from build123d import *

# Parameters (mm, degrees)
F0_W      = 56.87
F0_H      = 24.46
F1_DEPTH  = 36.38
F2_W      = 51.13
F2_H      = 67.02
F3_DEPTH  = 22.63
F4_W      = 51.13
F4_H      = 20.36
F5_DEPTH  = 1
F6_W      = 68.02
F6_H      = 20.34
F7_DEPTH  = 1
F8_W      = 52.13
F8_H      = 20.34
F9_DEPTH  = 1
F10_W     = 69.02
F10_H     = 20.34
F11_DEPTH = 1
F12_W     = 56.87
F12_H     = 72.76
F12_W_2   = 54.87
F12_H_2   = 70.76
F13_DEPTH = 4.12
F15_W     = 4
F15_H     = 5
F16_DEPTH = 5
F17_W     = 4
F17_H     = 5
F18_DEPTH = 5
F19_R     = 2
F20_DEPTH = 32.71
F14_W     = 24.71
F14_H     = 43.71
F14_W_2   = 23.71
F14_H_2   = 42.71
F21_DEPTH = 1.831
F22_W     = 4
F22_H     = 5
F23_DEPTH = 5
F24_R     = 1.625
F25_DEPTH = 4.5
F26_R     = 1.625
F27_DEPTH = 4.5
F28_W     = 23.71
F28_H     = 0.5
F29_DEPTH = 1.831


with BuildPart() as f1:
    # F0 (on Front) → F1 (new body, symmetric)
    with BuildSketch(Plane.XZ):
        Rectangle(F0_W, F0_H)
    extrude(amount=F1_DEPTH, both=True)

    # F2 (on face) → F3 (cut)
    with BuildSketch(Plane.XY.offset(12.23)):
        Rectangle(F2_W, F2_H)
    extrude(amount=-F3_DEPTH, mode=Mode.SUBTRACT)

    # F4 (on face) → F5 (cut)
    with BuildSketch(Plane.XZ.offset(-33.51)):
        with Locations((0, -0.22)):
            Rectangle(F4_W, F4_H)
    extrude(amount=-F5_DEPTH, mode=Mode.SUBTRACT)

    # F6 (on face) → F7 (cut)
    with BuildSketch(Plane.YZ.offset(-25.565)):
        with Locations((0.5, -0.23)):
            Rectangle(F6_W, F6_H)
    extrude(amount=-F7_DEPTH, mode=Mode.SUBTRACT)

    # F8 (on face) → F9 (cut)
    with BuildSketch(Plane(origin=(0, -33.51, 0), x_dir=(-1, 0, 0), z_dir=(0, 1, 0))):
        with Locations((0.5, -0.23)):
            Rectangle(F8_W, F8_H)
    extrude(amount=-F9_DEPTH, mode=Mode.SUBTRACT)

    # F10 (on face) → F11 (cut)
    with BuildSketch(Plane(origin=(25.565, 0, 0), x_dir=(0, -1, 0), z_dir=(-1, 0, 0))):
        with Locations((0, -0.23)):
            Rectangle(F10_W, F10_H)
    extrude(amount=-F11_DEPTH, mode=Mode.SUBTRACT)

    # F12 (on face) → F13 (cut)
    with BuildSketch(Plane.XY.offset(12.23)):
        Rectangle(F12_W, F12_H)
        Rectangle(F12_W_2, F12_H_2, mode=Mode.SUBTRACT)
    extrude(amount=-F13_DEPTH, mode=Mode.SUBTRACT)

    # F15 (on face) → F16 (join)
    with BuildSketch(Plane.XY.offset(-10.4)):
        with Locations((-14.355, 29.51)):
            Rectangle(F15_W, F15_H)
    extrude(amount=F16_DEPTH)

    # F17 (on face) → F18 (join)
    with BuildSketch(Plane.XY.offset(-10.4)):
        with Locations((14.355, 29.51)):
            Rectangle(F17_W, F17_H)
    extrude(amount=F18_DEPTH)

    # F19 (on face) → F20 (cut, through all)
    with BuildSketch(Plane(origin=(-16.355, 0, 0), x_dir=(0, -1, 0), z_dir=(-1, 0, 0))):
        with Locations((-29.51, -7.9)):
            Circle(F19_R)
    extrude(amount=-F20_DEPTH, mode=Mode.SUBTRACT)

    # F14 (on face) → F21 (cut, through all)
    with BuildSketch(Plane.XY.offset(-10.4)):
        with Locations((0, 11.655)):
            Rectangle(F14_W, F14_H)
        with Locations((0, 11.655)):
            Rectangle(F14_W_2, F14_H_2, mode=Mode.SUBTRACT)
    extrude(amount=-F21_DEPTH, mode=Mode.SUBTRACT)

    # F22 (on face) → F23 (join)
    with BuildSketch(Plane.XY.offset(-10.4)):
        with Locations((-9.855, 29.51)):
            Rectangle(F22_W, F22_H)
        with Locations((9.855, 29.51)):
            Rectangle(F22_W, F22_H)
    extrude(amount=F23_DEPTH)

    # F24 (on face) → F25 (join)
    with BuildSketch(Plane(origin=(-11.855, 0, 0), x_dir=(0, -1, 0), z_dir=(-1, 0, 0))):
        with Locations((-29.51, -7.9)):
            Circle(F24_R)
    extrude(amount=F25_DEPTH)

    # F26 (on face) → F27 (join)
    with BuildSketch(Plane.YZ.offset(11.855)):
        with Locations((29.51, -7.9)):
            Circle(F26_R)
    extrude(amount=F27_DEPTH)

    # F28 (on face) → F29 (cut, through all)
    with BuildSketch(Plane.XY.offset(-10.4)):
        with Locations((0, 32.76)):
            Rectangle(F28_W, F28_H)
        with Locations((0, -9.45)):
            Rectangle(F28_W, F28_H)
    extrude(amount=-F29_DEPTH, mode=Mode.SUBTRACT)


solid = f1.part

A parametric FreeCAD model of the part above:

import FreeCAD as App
import Part
import Sketcher
from FreeCAD import Vector
Q = App.Units.Quantity


def add_polygon(sketch, points):
    """Adds a closed chain of lines whose ends are joined by coincident constraints."""
    first, n = sketch.GeometryCount, len(points)
    for a, b in zip(points, points[1:] + points[:1]):
        sketch.addGeometry(Part.LineSegment(App.Vector(*a, 0), App.Vector(*b, 0)), False)
    for i in range(n):
        sketch.addConstraint(Sketcher.Constraint("Coincident", first + i, 2, first + (i + 1) % n, 1))

doc = App.newDocument("Part")
body = doc.addObject("PartDesign::Body", "Body")
body.AllowCompound = True

# Sketch on XZ plane
sketch1 = body.newObject("Sketcher::SketchObject", "Sketch")
sketch1.AttachmentSupport = (doc.getObject("XZ_Plane"), [""])
sketch1.MapMode = "FlatFace"
add_polygon(sketch1, [(-28.435, 12.23), (-28.435, -12.23), (28.435, -12.23), (28.435, 12.23)])  # lines 0-3
sketch1.addConstraint(Sketcher.Constraint("Vertical", 0))
sketch1.addConstraint(Sketcher.Constraint("Horizontal", 1))
sketch1.addConstraint(Sketcher.Constraint("Vertical", 2))
sketch1.addConstraint(Sketcher.Constraint("Horizontal", 3))
sketch1.addConstraint(Sketcher.Constraint("Symmetric", 0, 2, 2, 2, -1, 1))
sketch1.addConstraint(Sketcher.Constraint("DistanceX", 1, 1, 1, 2, Q("56.87 mm")))
sketch1.addConstraint(Sketcher.Constraint("DistanceY", 0, 2, 0, 1, Q("24.46 mm")))
pad1 = body.newObject("PartDesign::Pad", "Pad")
pad1.Profile = sketch1
pad1.Length = 72.76
pad1.Midplane = True

# Sketch on XY plane
sketch2 = body.newObject("Sketcher::SketchObject", "Sketch001")
sketch2.AttachmentSupport = (doc.getObject("XY_Plane"), [""])
sketch2.MapMode = "FlatFace"
sketch2.AttachmentOffset = App.Placement(Vector(0, 0, 12.23), App.Rotation())
add_polygon(sketch2, [(-25.565, 33.51), (-25.565, -33.51), (25.565, -33.51), (25.565, 33.51)])  # lines 0-3
sketch2.addConstraint(Sketcher.Constraint("Vertical", 0))
sketch2.addConstraint(Sketcher.Constraint("Horizontal", 1))
sketch2.addConstraint(Sketcher.Constraint("Vertical", 2))
sketch2.addConstraint(Sketcher.Constraint("Horizontal", 3))
sketch2.addConstraint(Sketcher.Constraint("Symmetric", 0, 2, 2, 2, -1, 1))
sketch2.addConstraint(Sketcher.Constraint("DistanceX", 1, 1, 1, 2, Q("51.13 mm")))
sketch2.addConstraint(Sketcher.Constraint("DistanceY", 0, 2, 0, 1, Q("67.02 mm")))
pocket1 = body.newObject("PartDesign::Pocket", "Pocket")
pocket1.Profile = sketch2
pocket1.Length = 22.63

# Sketch on XZ plane
sketch3 = body.newObject("Sketcher::SketchObject", "Sketch002")
sketch3.AttachmentSupport = (doc.getObject("XZ_Plane"), [""])
sketch3.MapMode = "FlatFace"
sketch3.AttachmentOffset = App.Placement(Vector(0, 0, -33.51), App.Rotation())
add_polygon(sketch3, [(-25.565, 9.96), (-25.565, -10.4), (25.565, -10.4), (25.565, 9.96)])  # lines 0-3
sketch3.addConstraint(Sketcher.Constraint("Vertical", 0))
sketch3.addConstraint(Sketcher.Constraint("Horizontal", 1))
sketch3.addConstraint(Sketcher.Constraint("Vertical", 2))
sketch3.addConstraint(Sketcher.Constraint("Horizontal", 3))
sketch3.addConstraint(Sketcher.Constraint("DistanceX", 1, 1, 1, 2, Q("51.13 mm")))
sketch3.addConstraint(Sketcher.Constraint("DistanceY", 0, 2, 0, 1, Q("20.36 mm")))
sketch3.addConstraint(Sketcher.Constraint("DistanceY", 0, 2, -1, 1, Q("10.4 mm")))
sketch3.addConstraint(Sketcher.Constraint("DistanceX", 0, 2, -1, 1, Q("25.565 mm")))
pocket2 = body.newObject("PartDesign::Pocket", "Pocket001")
pocket2.Profile = sketch3
pocket2.Length = 1

# Sketch on YZ plane
sketch4 = body.newObject("Sketcher::SketchObject", "Sketch003")
sketch4.AttachmentSupport = (doc.getObject("YZ_Plane"), [""])
sketch4.MapMode = "FlatFace"
sketch4.AttachmentOffset = App.Placement(Vector(0, 0, -25.565), App.Rotation())
add_polygon(sketch4, [(-33.51, 9.94), (-33.51, -10.4), (34.51, -10.4), (34.51, 9.94)])  # lines 0-3
sketch4.addConstraint(Sketcher.Constraint("Vertical", 0))
sketch4.addConstraint(Sketcher.Constraint("Horizontal", 1))
sketch4.addConstraint(Sketcher.Constraint("Vertical", 2))
sketch4.addConstraint(Sketcher.Constraint("Horizontal", 3))
sketch4.addConstraint(Sketcher.Constraint("DistanceX", 1, 1, 1, 2, Q("68.02 mm")))
sketch4.addConstraint(Sketcher.Constraint("DistanceY", 0, 2, 0, 1, Q("20.34 mm")))
sketch4.addConstraint(Sketcher.Constraint("DistanceY", 0, 2, -1, 1, Q("10.4 mm")))
sketch4.addConstraint(Sketcher.Constraint("DistanceX", 0, 2, -1, 1, Q("33.51 mm")))
pocket3 = body.newObject("PartDesign::Pocket", "Pocket002")
pocket3.Profile = sketch4
pocket3.Length = 1

# Sketch on XZ plane
sketch5 = body.newObject("Sketcher::SketchObject", "Sketch004")
sketch5.AttachmentSupport = (doc.getObject("XZ_Plane"), [""])
sketch5.MapMode = "FlatFace"
sketch5.AttachmentOffset = App.Placement(Vector(0, 0, 33.51), App.Rotation())
add_polygon(sketch5, [(25.565, 9.94), (25.565, -10.4), (-26.565, -10.4), (-26.565, 9.94)])  # lines 0-3
sketch5.addConstraint(Sketcher.Constraint("Vertical", 0))
sketch5.addConstraint(Sketcher.Constraint("Horizontal", 1))
sketch5.addConstraint(Sketcher.Constraint("Vertical", 2))
sketch5.addConstraint(Sketcher.Constraint("Horizontal", 3))
sketch5.addConstraint(Sketcher.Constraint("DistanceX", 1, 2, 1, 1, Q("52.13 mm")))
sketch5.addConstraint(Sketcher.Constraint("DistanceY", 0, 2, 0, 1, Q("20.34 mm")))
sketch5.addConstraint(Sketcher.Constraint("DistanceY", 0, 2, -1, 1, Q("10.4 mm")))
sketch5.addConstraint(Sketcher.Constraint("DistanceX", -1, 1, 0, 2, Q("25.565 mm")))
pocket4 = body.newObject("PartDesign::Pocket", "Pocket003")
pocket4.Profile = sketch5
pocket4.Length = 1
pocket4.Reversed = True

# Sketch on YZ plane
sketch6 = body.newObject("Sketcher::SketchObject", "Sketch005")
sketch6.AttachmentSupport = (doc.getObject("YZ_Plane"), [""])
sketch6.MapMode = "FlatFace"
sketch6.AttachmentOffset = App.Placement(Vector(0, 0, 25.565), App.Rotation())
add_polygon(sketch6, [(34.51, 9.94), (34.51, -10.4), (-34.51, -10.4), (-34.51, 9.94)])  # lines 0-3
sketch6.addConstraint(Sketcher.Constraint("Vertical", 0))
sketch6.addConstraint(Sketcher.Constraint("Horizontal", 1))
sketch6.addConstraint(Sketcher.Constraint("Vertical", 2))
sketch6.addConstraint(Sketcher.Constraint("Horizontal", 3))
sketch6.addConstraint(Sketcher.Constraint("DistanceX", 1, 2, 1, 1, Q("69.02 mm")))
sketch6.addConstraint(Sketcher.Constraint("DistanceY", 0, 2, 0, 1, Q("20.34 mm")))
sketch6.addConstraint(Sketcher.Constraint("DistanceY", 0, 2, -1, 1, Q("10.4 mm")))
sketch6.addConstraint(Sketcher.Constraint("DistanceX", -1, 1, 0, 2, Q("34.51 mm")))
pocket5 = body.newObject("PartDesign::Pocket", "Pocket004")
pocket5.Profile = sketch6
pocket5.Length = 1
pocket5.Reversed = True

# Sketch on XY plane
sketch7 = body.newObject("Sketcher::SketchObject", "Sketch006")
sketch7.AttachmentSupport = (doc.getObject("XY_Plane"), [""])
sketch7.MapMode = "FlatFace"
sketch7.AttachmentOffset = App.Placement(Vector(0, 0, 12.23), App.Rotation())
add_polygon(sketch7, [(-28.435, 36.38), (-28.435, -36.38), (28.435, -36.38), (28.435, 36.38)])  # lines 0-3
add_polygon(sketch7, [(27.435, -35.38), (-27.435, -35.38), (-27.435, 35.38), (27.435, 35.38)])  # lines 4-7
sketch7.addConstraint(Sketcher.Constraint("Vertical", 0))
sketch7.addConstraint(Sketcher.Constraint("Horizontal", 1))
sketch7.addConstraint(Sketcher.Constraint("Vertical", 2))
sketch7.addConstraint(Sketcher.Constraint("Horizontal", 3))
sketch7.addConstraint(Sketcher.Constraint("Horizontal", 4))
sketch7.addConstraint(Sketcher.Constraint("Vertical", 5))
sketch7.addConstraint(Sketcher.Constraint("Horizontal", 6))
sketch7.addConstraint(Sketcher.Constraint("Vertical", 7))
sketch7.addConstraint(Sketcher.Constraint("Symmetric", 0, 2, 2, 2, -1, 1))
sketch7.addConstraint(Sketcher.Constraint("Symmetric", 4, 2, 6, 2, -1, 1))
sketch7.addConstraint(Sketcher.Constraint("DistanceX", 0, 2, 4, 2, Q("1 mm")))
sketch7.addConstraint(Sketcher.Constraint("DistanceY", 0, 2, 4, 2, Q("1 mm")))
sketch7.addConstraint(Sketcher.Constraint("DistanceX", 1, 1, 1, 2, Q("56.87 mm")))
sketch7.addConstraint(Sketcher.Constraint("DistanceY", 0, 2, 0, 1, Q("72.76 mm")))
pocket6 = body.newObject("PartDesign::Pocket", "Pocket005")
pocket6.Profile = sketch7
pocket6.Length = 4.12

# Sketch on XY plane
sketch8 = body.newObject("Sketcher::SketchObject", "Sketch007")
sketch8.AttachmentSupport = (doc.getObject("XY_Plane"), [""])
sketch8.MapMode = "FlatFace"
sketch8.AttachmentOffset = App.Placement(Vector(0, 0, -10.4), App.Rotation())
add_polygon(sketch8, [(-16.355, 32.01), (-16.355, 27.01), (-12.355, 27.01), (-12.355, 32.01)])  # lines 0-3
sketch8.addConstraint(Sketcher.Constraint("Vertical", 0))
sketch8.addConstraint(Sketcher.Constraint("Horizontal", 1))
sketch8.addConstraint(Sketcher.Constraint("Vertical", 2))
sketch8.addConstraint(Sketcher.Constraint("Horizontal", 3))
sketch8.addConstraint(Sketcher.Constraint("DistanceX", 1, 1, 1, 2, Q("4 mm")))
sketch8.addConstraint(Sketcher.Constraint("DistanceY", 0, 2, 0, 1, Q("5 mm")))
sketch8.addConstraint(Sketcher.Constraint("DistanceY", -1, 1, 0, 2, Q("27.01 mm")))
sketch8.addConstraint(Sketcher.Constraint("DistanceX", 0, 2, -1, 1, Q("16.355 mm")))
pad2 = body.newObject("PartDesign::Pad", "Pad001")
pad2.Profile = sketch8
pad2.Length = 5

# Sketch on XY plane
sketch9 = body.newObject("Sketcher::SketchObject", "Sketch008")
sketch9.AttachmentSupport = (doc.getObject("XY_Plane"), [""])
sketch9.MapMode = "FlatFace"
sketch9.AttachmentOffset = App.Placement(Vector(0, 0, -10.4), App.Rotation())
add_polygon(sketch9, [(12.355, 32.01), (12.355, 27.01), (16.355, 27.01), (16.355, 32.01)])  # lines 0-3
sketch9.addConstraint(Sketcher.Constraint("Vertical", 0))
sketch9.addConstraint(Sketcher.Constraint("Horizontal", 1))
sketch9.addConstraint(Sketcher.Constraint("Vertical", 2))
sketch9.addConstraint(Sketcher.Constraint("Horizontal", 3))
sketch9.addConstraint(Sketcher.Constraint("DistanceX", 1, 1, 1, 2, Q("4 mm")))
sketch9.addConstraint(Sketcher.Constraint("DistanceY", 0, 2, 0, 1, Q("5 mm")))
sketch9.addConstraint(Sketcher.Constraint("DistanceY", -1, 1, 0, 2, Q("27.01 mm")))
sketch9.addConstraint(Sketcher.Constraint("DistanceX", -1, 1, 0, 2, Q("12.355 mm")))
pad3 = body.newObject("PartDesign::Pad", "Pad002")
pad3.Profile = sketch9
pad3.Length = 5

# Sketch on YZ plane
sketch10 = body.newObject("Sketcher::SketchObject", "Sketch009")
sketch10.AttachmentSupport = (doc.getObject("YZ_Plane"), [""])
sketch10.MapMode = "FlatFace"
sketch10.AttachmentOffset = App.Placement(Vector(0, 0, -16.355), App.Rotation())
sketch10.addGeometry(Part.Circle(Vector(29.51, -7.9, 0), Vector(0, 0, 1), 2), False)
sketch10.addConstraint(Sketcher.Constraint("Diameter", 0, Q("4 mm")))
sketch10.addConstraint(Sketcher.Constraint("DistanceY", 0, 3, -1, 1, Q("7.9 mm")))
sketch10.addConstraint(Sketcher.Constraint("DistanceX", -1, 1, 0, 3, Q("29.51 mm")))
pocket7 = body.newObject("PartDesign::Pocket", "Pocket006")
pocket7.Profile = sketch10
pocket7.Length = 32.71
pocket7.Reversed = True

# Sketch on XY plane
sketch11 = body.newObject("Sketcher::SketchObject", "Sketch010")
sketch11.AttachmentSupport = (doc.getObject("XY_Plane"), [""])
sketch11.MapMode = "FlatFace"
sketch11.AttachmentOffset = App.Placement(Vector(0, 0, -10.4), App.Rotation())
add_polygon(sketch11, [(-12.355, 33.51), (-12.355, -10.2), (12.355, -10.2), (12.355, 33.51)])  # lines 0-3
add_polygon(sketch11, [(11.855, -9.7), (-11.855, -9.7), (-11.855, 33.01), (11.855, 33.01)])  # lines 4-7
sketch11.addConstraint(Sketcher.Constraint("Vertical", 0))
sketch11.addConstraint(Sketcher.Constraint("Horizontal", 1))
sketch11.addConstraint(Sketcher.Constraint("Vertical", 2))
sketch11.addConstraint(Sketcher.Constraint("Horizontal", 3))
sketch11.addConstraint(Sketcher.Constraint("Horizontal", 4))
sketch11.addConstraint(Sketcher.Constraint("Vertical", 5))
sketch11.addConstraint(Sketcher.Constraint("Horizontal", 6))
sketch11.addConstraint(Sketcher.Constraint("Vertical", 7))
sketch11.addConstraint(Sketcher.Constraint("DistanceX", 1, 1, 1, 2, Q("24.71 mm")))
sketch11.addConstraint(Sketcher.Constraint("DistanceX", 4, 2, 4, 1, Q("23.71 mm")))
sketch11.addConstraint(Sketcher.Constraint("DistanceY", 0, 2, 0, 1, Q("43.71 mm")))
sketch11.addConstraint(Sketcher.Constraint("DistanceY", 5, 1, 5, 2, Q("42.71 mm")))
sketch11.addConstraint(Sketcher.Constraint("DistanceY", 0, 2, -1, 1, Q("10.2 mm")))
sketch11.addConstraint(Sketcher.Constraint("DistanceY", 4, 2, -1, 1, Q("9.7 mm")))
sketch11.addConstraint(Sketcher.Constraint("DistanceX", 0, 2, 4, 2, Q("0.5 mm")))
sketch11.addConstraint(Sketcher.Constraint("DistanceX", 0, 2, -1, 1, Q("12.355 mm")))
pocket8 = body.newObject("PartDesign::Pocket", "Pocket007")
pocket8.Profile = sketch11
pocket8.Type = "ThroughAll"

# Sketch on XY plane
sketch12 = body.newObject("Sketcher::SketchObject", "Sketch011")
sketch12.AttachmentSupport = (doc.getObject("XY_Plane"), [""])
sketch12.MapMode = "FlatFace"
sketch12.AttachmentOffset = App.Placement(Vector(0, 0, -10.4), App.Rotation())
add_polygon(sketch12, [(-11.855, 32.01), (-11.855, 27.01), (-7.855, 27.01), (-7.855, 32.01)])  # lines 0-3
add_polygon(sketch12, [(7.855, 32.01), (7.855, 27.01), (11.855, 27.01), (11.855, 32.01)])  # lines 4-7
sketch12.addConstraint(Sketcher.Constraint("Vertical", 0))
sketch12.addConstraint(Sketcher.Constraint("Horizontal", 1))
sketch12.addConstraint(Sketcher.Constraint("Vertical", 2))
sketch12.addConstraint(Sketcher.Constraint("Horizontal", 3))
sketch12.addConstraint(Sketcher.Constraint("Vertical", 4))
sketch12.addConstraint(Sketcher.Constraint("Horizontal", 5))
sketch12.addConstraint(Sketcher.Constraint("Vertical", 6))
sketch12.addConstraint(Sketcher.Constraint("Horizontal", 7))
sketch12.addConstraint(Sketcher.Constraint("Symmetric", 1, 2, 4, 2, -2))
sketch12.addConstraint(Sketcher.Constraint("Symmetric", 3, 2, 6, 2, -2))
sketch12.addConstraint(Sketcher.Constraint("DistanceX", 1, 1, 1, 2, Q("4 mm")))
sketch12.addConstraint(Sketcher.Constraint("DistanceY", 0, 2, 0, 1, Q("5 mm")))
sketch12.addConstraint(Sketcher.Constraint("DistanceY", -1, 1, 0, 2, Q("27.01 mm")))
sketch12.addConstraint(Sketcher.Constraint("DistanceX", 1, 2, 4, 2, Q("15.71 mm")))
pad4 = body.newObject("PartDesign::Pad", "Pad003")
pad4.Profile = sketch12
pad4.Length = 5

# Sketch on YZ plane
sketch13 = body.newObject("Sketcher::SketchObject", "Sketch012")
sketch13.AttachmentSupport = (doc.getObject("YZ_Plane"), [""])
sketch13.MapMode = "FlatFace"
sketch13.AttachmentOffset = App.Placement(Vector(0, 0, -11.855), App.Rotation())
sketch13.addGeometry(Part.Circle(Vector(29.51, -7.9, 0), Vector(0, 0, 1), 1.625), False)
sketch13.addConstraint(Sketcher.Constraint("Diameter", 0, Q("3.25 mm")))
sketch13.addConstraint(Sketcher.Constraint("DistanceY", 0, 3, -1, 1, Q("7.9 mm")))
sketch13.addConstraint(Sketcher.Constraint("DistanceX", -1, 1, 0, 3, Q("29.51 mm")))
pad5 = body.newObject("PartDesign::Pad", "Pad004")
pad5.Profile = sketch13
pad5.Length = 4.5
pad5.Reversed = True

# Sketch on YZ plane
sketch14 = body.newObject("Sketcher::SketchObject", "Sketch013")
sketch14.AttachmentSupport = (doc.getObject("YZ_Plane"), [""])
sketch14.MapMode = "FlatFace"
sketch14.AttachmentOffset = App.Placement(Vector(0, 0, 11.855), App.Rotation())
sketch14.addGeometry(Part.Circle(Vector(29.51, -7.9, 0), Vector(0, 0, 1), 1.625), False)
sketch14.addConstraint(Sketcher.Constraint("Diameter", 0, Q("3.25 mm")))
sketch14.addConstraint(Sketcher.Constraint("DistanceY", 0, 3, -1, 1, Q("7.9 mm")))
sketch14.addConstraint(Sketcher.Constraint("DistanceX", -1, 1, 0, 3, Q("29.51 mm")))
pad6 = body.newObject("PartDesign::Pad", "Pad005")
pad6.Profile = sketch14
pad6.Length = 4.5

# Sketch on XY plane
sketch15 = body.newObject("Sketcher::SketchObject", "Sketch014")
sketch15.AttachmentSupport = (doc.getObject("XY_Plane"), [""])
sketch15.MapMode = "FlatFace"
sketch15.AttachmentOffset = App.Placement(Vector(0, 0, -10.4), App.Rotation())
add_polygon(sketch15, [(-11.855, 33.01), (-11.855, 32.51), (11.855, 32.51), (11.855, 33.01)])  # lines 0-3
add_polygon(sketch15, [(-11.855, -9.2), (-11.855, -9.7), (11.855, -9.7), (11.855, -9.2)])  # lines 4-7
sketch15.addConstraint(Sketcher.Constraint("Vertical", 0))
sketch15.addConstraint(Sketcher.Constraint("Horizontal", 1))
sketch15.addConstraint(Sketcher.Constraint("Vertical", 2))
sketch15.addConstraint(Sketcher.Constraint("Horizontal", 3))
sketch15.addConstraint(Sketcher.Constraint("Vertical", 4))
sketch15.addConstraint(Sketcher.Constraint("Horizontal", 5))
sketch15.addConstraint(Sketcher.Constraint("Vertical", 6))
sketch15.addConstraint(Sketcher.Constraint("Horizontal", 7))
sketch15.addConstraint(Sketcher.Constraint("Vertical", 3, 2, 4, 2))
sketch15.addConstraint(Sketcher.Constraint("Vertical", 2, 2, 5, 2))
sketch15.addConstraint(Sketcher.Constraint("Equal", 2, 4))
sketch15.addConstraint(Sketcher.Constraint("DistanceY", 0, 2, 0, 1, Q("0.5 mm")))
sketch15.addConstraint(Sketcher.Constraint("DistanceX", 1, 1, 1, 2, Q("23.71 mm")))
sketch15.addConstraint(Sketcher.Constraint("DistanceY", 4, 2, -1, 1, Q("9.7 mm")))
sketch15.addConstraint(Sketcher.Constraint("DistanceY", -1, 1, 0, 2, Q("32.51 mm")))
sketch15.addConstraint(Sketcher.Constraint("DistanceX", 0, 2, -1, 1, Q("11.855 mm")))
pocket9 = body.newObject("PartDesign::Pocket", "Pocket008")
pocket9.Profile = sketch15
pocket9.Type = "ThroughAll"

doc.recompute()
